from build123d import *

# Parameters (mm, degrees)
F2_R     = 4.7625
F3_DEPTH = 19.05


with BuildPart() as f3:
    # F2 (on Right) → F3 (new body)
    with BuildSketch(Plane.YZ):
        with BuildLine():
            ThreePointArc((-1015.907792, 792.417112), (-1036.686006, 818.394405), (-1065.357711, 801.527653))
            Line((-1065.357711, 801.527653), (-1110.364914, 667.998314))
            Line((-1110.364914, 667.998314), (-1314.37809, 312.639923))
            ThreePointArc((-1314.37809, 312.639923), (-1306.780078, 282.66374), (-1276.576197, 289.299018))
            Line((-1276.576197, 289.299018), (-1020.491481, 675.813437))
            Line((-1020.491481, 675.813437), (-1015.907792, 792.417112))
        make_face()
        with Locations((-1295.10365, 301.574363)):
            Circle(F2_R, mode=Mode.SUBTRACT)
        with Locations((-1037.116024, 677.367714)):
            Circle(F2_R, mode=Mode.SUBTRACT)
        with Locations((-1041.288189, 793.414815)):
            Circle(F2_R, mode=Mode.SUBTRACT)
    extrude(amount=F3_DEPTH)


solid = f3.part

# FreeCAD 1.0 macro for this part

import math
import FreeCAD as App
import Part
import Sketcher
Q = App.Units.Quantity

doc = App.newDocument("Part")
body = doc.addObject("PartDesign::Body", "Body")

sketch1 = doc.addObject("Sketcher::SketchObject", "Sketch")
body.addObject(sketch1)
sketch1.AttachmentSupport = (doc.YZ_Plane, [""])
sketch1.MapMode = "FlatFace"
sketch1.addGeometry([
    Part.ArcOfCircle(Part.Circle(App.Vector(-1041.3, 793.4, 0), App.Vector(0, 0, 1), 25.4), math.radians(-2), math.radians(161)),
    Part.LineSegment(App.Vector(-1065.4, 801.5, 0), App.Vector(-1110.4, 668, 0)),
    Part.LineSegment(App.Vector(-1110.4, 668, 0), App.Vector(-1314.4, 312.6, 0)),
    Part.ArcOfCircle(Part.Circle(App.Vector(-1295.1, 301.6, 0), App.Vector(0, 0, 1), 22.2), math.radians(150), math.radians(326)),
    Part.LineSegment(App.Vector(-1276.6, 289.3, 0), App.Vector(-1020.5, 675.8, 0)),
    Part.LineSegment(App.Vector(-1020.5, 675.8, 0), App.Vector(-1015.9, 792.4, 0)),
    Part.Circle(App.Vector(-1295.1, 301.6, 0), App.Vector(0, 0, 1), 4.8),
    Part.Circle(App.Vector(-1037.1, 677.4, 0), App.Vector(0, 0, 1), 4.8),
    Part.Circle(App.Vector(-1041.3, 793.4, 0), App.Vector(0, 0, 1), 4.8),
], False)
sketch1.addConstraint([
    Sketcher.Constraint("Tangent", 0, 2, 1, 1),
    Sketcher.Constraint("Coincident", 1, 2, 2, 1),
    Sketcher.Constraint("Tangent", 2, 2, 3, 1),
    Sketcher.Constraint("Tangent", 3, 2, 4, 1),
    Sketcher.Constraint("Coincident", 4, 2, 5, 1),
    Sketcher.Constraint("Tangent", 5, 2, 0, 1),
    Sketcher.Constraint("Coincident", 6, 3, 3, 3),
    Sketcher.Constraint("Coincident", 8, 3, 0, 3),
    Sketcher.Constraint("Equal", 6, 7),
    Sketcher.Constraint("Equal", 7, 8),
    Sketcher.Constraint("Radius", 0, Q("1 in")),
    Sketcher.Constraint("Diameter", 6, Q("0.375 in")),
    Sketcher.Constraint("Radius", 3, Q("0.875 in")),
    Sketcher.Constraint("Distance", 2, Q("409.757199 mm")),
    Sketcher.Constraint("DistanceY", 7, 3, 0, 3, Q("116.047101 mm")),
    Sketcher.Constraint("DistanceY", 1, 2, 7, 3, Q("9.3694 mm")),
    Sketcher.Constraint("Distance", 1, Q("140.910371 mm")),
    Sketcher.Constraint("Distance", 4, Q("463.651569 mm")),
    Sketcher.Constraint("DistanceX", 0, 3, -1, 1, Q("1041.28819 mm")),
    Sketcher.Constraint("DistanceX", 3, 3, -1, 1, Q("1295.10365 mm")),
    Sketcher.Constraint("DistanceX", 4, 2, -1, 1, Q("1020.491481 mm")),
    Sketcher.Constraint("DistanceY", -1, 1, 5, 2, Q("792.417112 mm")),
    Sketcher.Constraint("DistanceX", 1, 2, 7, 3, Q("73.24889 mm")),
])
pad1 = doc.addObject("PartDesign::Pad", "Pad")
body.addObject(pad1)
pad1.Profile = sketch1
pad1.Length = Q("0.75 in")

doc.recompute()
